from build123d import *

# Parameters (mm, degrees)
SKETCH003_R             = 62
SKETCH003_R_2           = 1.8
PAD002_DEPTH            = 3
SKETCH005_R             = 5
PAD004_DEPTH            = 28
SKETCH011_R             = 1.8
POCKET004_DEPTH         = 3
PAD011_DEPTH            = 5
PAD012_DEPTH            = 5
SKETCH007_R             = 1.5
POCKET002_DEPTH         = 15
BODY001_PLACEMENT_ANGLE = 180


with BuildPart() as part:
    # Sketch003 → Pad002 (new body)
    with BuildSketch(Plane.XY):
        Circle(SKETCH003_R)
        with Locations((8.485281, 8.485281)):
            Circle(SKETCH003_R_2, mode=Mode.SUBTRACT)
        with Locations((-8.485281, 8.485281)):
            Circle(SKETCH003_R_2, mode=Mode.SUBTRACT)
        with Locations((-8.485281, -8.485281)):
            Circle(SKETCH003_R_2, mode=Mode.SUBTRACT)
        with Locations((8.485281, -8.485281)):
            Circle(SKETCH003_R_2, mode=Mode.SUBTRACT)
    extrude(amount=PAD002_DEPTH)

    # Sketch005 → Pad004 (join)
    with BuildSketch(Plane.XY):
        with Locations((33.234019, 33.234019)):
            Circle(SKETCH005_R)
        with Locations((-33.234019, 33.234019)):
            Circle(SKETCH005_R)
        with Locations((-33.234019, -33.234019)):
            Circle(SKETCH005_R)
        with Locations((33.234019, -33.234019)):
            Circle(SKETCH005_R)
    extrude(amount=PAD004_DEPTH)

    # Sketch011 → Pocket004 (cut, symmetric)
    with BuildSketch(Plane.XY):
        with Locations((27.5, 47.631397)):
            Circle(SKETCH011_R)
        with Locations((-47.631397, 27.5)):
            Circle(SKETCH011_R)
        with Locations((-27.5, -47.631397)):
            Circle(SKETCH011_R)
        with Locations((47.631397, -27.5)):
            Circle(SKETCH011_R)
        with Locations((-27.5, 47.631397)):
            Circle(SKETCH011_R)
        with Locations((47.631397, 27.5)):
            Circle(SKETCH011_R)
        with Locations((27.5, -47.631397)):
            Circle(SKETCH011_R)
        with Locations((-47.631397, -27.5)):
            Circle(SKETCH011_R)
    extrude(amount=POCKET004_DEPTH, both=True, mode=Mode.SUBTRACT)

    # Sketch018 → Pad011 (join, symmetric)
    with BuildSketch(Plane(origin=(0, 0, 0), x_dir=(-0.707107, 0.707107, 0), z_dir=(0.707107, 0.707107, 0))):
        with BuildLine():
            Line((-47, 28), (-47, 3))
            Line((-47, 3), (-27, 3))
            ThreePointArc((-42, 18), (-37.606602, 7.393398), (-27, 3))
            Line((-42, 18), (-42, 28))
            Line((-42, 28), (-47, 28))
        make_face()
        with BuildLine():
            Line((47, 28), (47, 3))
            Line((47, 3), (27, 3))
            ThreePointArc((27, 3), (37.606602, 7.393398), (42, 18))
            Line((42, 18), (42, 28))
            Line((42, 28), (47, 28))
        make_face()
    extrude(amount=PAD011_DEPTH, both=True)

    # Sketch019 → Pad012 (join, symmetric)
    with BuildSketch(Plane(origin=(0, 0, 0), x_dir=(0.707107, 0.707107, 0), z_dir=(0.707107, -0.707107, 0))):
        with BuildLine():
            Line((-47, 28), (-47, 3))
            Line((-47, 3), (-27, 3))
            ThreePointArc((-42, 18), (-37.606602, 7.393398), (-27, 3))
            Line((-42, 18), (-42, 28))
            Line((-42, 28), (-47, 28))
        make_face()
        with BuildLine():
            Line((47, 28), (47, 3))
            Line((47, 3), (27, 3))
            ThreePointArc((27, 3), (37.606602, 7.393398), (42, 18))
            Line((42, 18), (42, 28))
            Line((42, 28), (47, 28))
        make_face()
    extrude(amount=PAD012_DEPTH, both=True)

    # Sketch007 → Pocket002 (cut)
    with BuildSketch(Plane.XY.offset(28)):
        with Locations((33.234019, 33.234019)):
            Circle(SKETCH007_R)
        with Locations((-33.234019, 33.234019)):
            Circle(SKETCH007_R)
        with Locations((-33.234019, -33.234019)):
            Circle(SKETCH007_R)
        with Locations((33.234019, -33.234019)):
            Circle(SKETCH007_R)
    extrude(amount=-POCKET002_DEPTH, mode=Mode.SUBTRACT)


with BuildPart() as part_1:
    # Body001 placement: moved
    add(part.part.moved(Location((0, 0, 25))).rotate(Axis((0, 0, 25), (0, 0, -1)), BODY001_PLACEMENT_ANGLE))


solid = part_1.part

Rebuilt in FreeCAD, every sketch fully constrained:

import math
import FreeCAD as App
import Part
import Sketcher

V = App.Vector

doc = App.newDocument("Part")
body = doc.addObject("PartDesign::Body", "Body")

# Sketch on XY plane
sketch1 = doc.addObject("Sketcher::SketchObject", "Sketch")
body.addObject(sketch1)
sketch1.AttachmentSupport = (doc.XY_Plane, [""])
sketch1.MapMode = "FlatFace"
sketch1.addGeometry([
    Part.Circle(V(0, 0, 0), V(0, 0, 1), 62),  # 0
    Part.Circle(V(-8.5, -8.5, 0), V(0, 0, 1), 1.8),  # 1
    Part.Circle(V(8.5, -8.5, 0), V(0, 0, 1), 1.8),  # 2
    Part.Circle(V(-8.5, 8.5, 0), V(0, 0, 1), 1.8),  # 3
    Part.Circle(V(8.5, 8.5, 0), V(0, 0, 1), 1.8),  # 4
], False)
sketch1.addConstraint([
    Sketcher.Constraint("Coincident", 0, 3, -1, 1),
    Sketcher.Constraint("Equal", 1, 2),
    Sketcher.Constraint("Equal", 2, 3),
    Sketcher.Constraint("Equal", 3, 4),
    Sketcher.Constraint("Symmetric", 2, 3, 3, 3, -1, 1),
    Sketcher.Constraint("Symmetric", 1, 3, 4, 3, -1, 1),
    Sketcher.Constraint("Symmetric", 1, 3, 2, 3, -2),
    Sketcher.Constraint("Diameter", 0, 124.0),
    Sketcher.Constraint("Diameter", 1, 3.6),
    Sketcher.Constraint("DistanceX", 1, 3, -1, 1, 8.485281),
    Sketcher.Constraint("DistanceY", 1, 3, -1, 1, 8.485281),
])
pad1 = doc.addObject("PartDesign::Pad", "Pad")
body.addObject(pad1)
pad1.Profile = sketch1
pad1.Length = 3

# Sketch on XY plane
sketch2 = doc.addObject("Sketcher::SketchObject", "Sketch001")
body.addObject(sketch2)
sketch2.AttachmentSupport = (doc.XY_Plane, [""])
sketch2.MapMode = "FlatFace"
sketch2.addGeometry([
    Part.Circle(V(33, 33, 0), V(0, 0, 1), 5),
    Part.Circle(V(-33, 33, 0), V(0, 0, 1), 5),
    Part.Circle(V(-33, -33, 0), V(0, 0, 1), 5),
    Part.Circle(V(33, -33, 0), V(0, 0, 1), 5),
], False)
sketch2.addConstraint([
    Sketcher.Constraint("Equal", 0, 1),
    Sketcher.Constraint("Equal", 1, 2),
    Sketcher.Constraint("Equal", 2, 3),
    Sketcher.Constraint("Symmetric", 0, 3, 2, 3, -1, 1),
    Sketcher.Constraint("Symmetric", 1, 3, 3, 3, -1, 1),
    Sketcher.Constraint("Symmetric", 0, 3, 1, 3, -2),
    Sketcher.Constraint("Diameter", 0, 10.0),
    Sketcher.Constraint("DistanceX", -1, 1, 0, 3, 33.234019),
    Sketcher.Constraint("DistanceY", -1, 1, 0, 3, 33.234019),
])
pad2 = doc.addObject("PartDesign::Pad", "Pad001")
body.addObject(pad2)
pad2.Profile = sketch2
pad2.Length = 28

# Sketch on XY plane
sketch3 = doc.addObject("Sketcher::SketchObject", "Sketch002")
body.addObject(sketch3)
sketch3.AttachmentSupport = (doc.XY_Plane, [""])
sketch3.MapMode = "FlatFace"
sketch3.addGeometry([
    Part.Circle(V(27.5, 47.6, 0), V(0, 0, 1), 1.8),  # 0
    Part.Circle(V(-47.6, 27.5, 0), V(0, 0, 1), 1.8),  # 1
    Part.Circle(V(-27.5, -47.6, 0), V(0, 0, 1), 1.8),  # 2
    Part.Circle(V(47.6, -27.5, 0), V(0, 0, 1), 1.8),  # 3
    Part.Circle(V(-27.5, 47.6, 0), V(0, 0, 1), 1.8),  # 4
    Part.Circle(V(47.6, 27.5, 0), V(0, 0, 1), 1.8),  # 5
    Part.Circle(V(27.5, -47.6, 0), V(0, 0, 1), 1.8),  # 6
    Part.Circle(V(-47.6, -27.5, 0), V(0, 0, 1), 1.8),  # 7
], False)
sketch3.addConstraint([
    Sketcher.Constraint("Equal", 0, 1),
    Sketcher.Constraint("Equal", 1, 2),
    Sketcher.Constraint("Equal", 2, 3),
    Sketcher.Constraint("Equal", 3, 4),
    Sketcher.Constraint("Equal", 4, 5),
    Sketcher.Constraint("Equal", 5, 6),
    Sketcher.Constraint("Equal", 6, 7),
    Sketcher.Constraint("Symmetric", 0, 3, 2, 3, -1, 1),
    Sketcher.Constraint("Symmetric", 1, 3, 3, 3, -1, 1),
    Sketcher.Constraint("Symmetric", 4, 3, 6, 3, -1, 1),
    Sketcher.Constraint("Symmetric", 5, 3, 7, 3, -1, 1),
    Sketcher.Constraint("Symmetric", 0, 3, 4, 3, -2),
    Sketcher.Constraint("Symmetric", 1, 3, 5, 3, -2),
    Sketcher.Constraint("Diameter", 0, 3.6),
    Sketcher.Constraint("DistanceX", 2, 3, 0, 3, 55.0),
    Sketcher.Constraint("DistanceY", 3, 3, 1, 3, 55.0),
    Sketcher.Constraint("DistanceY", -1, 1, 0, 3, 47.631397),
    Sketcher.Constraint("DistanceX", 1, 3, -1, 1, 47.631397),
])
pocket1 = doc.addObject("PartDesign::Pocket", "Pocket")
body.addObject(pocket1)
pocket1.Profile = sketch3
pocket1.Length = 6
pocket1.Midplane = True

# Sketch on an angled plane
sketch4 = doc.addObject("Sketcher::SketchObject", "Sketch003")
body.addObject(sketch4)
sketch4.Placement = App.Placement(V(0, 0, 0), App.Rotation(V(-0.707106781, 0.707106781, 0), V(0, 0, 0.999999999), V(0.707106781, 0.707106781, 0), "ZXY"))
sketch4.addGeometry([
    Part.LineSegment(V(-47, 28, 0), V(-47, 3, 0)),  # 0
    Part.LineSegment(V(-47, 3, 0), V(-27, 3, 0)),  # 1
    Part.ArcOfCircle(Part.Circle(V(-27, 18, 0), V(0, 0, 1), 15), math.radians(180), math.radians(270)),  # 2
    Part.LineSegment(V(-42, 18, 0), V(-42, 28, 0)),  # 3
    Part.LineSegment(V(-42, 28, 0), V(-47, 28, 0)),  # 4
    Part.LineSegment(V(47, 3, 0), V(47, 28, 0)),  # 5
    Part.LineSegment(V(47, 28, 0), V(42, 28, 0)),  # 6
    Part.LineSegment(V(42, 28, 0), V(42, 18, 0)),  # 7
    Part.ArcOfCircle(Part.Circle(V(27, 18, 0), V(0, 0, 1), 15), math.radians(-90), math.radians(0)),  # 8
    Part.LineSegment(V(27, 3, 0), V(47, 3, 0)),  # 9
], False)
sketch4.addConstraint([
    Sketcher.Constraint("Coincident", 0, 2, 1, 1),
    Sketcher.Constraint("Tangent", 1, 2, 2, 2),
    Sketcher.Constraint("Tangent", 2, 1, 3, 1),
    Sketcher.Constraint("Coincident", 3, 2, 4, 1),
    Sketcher.Constraint("Coincident", 4, 2, 0, 1),
    Sketcher.Constraint("Coincident", 5, 2, 6, 1),
    Sketcher.Constraint("Coincident", 6, 2, 7, 1),
    Sketcher.Constraint("Tangent", 7, 2, 8, 2),
    Sketcher.Constraint("Tangent", 8, 1, 9, 1),
    Sketcher.Constraint("Coincident", 9, 2, 5, 1),
    Sketcher.Constraint("Vertical", 0),
    Sketcher.Constraint("Horizontal", 1),
    Sketcher.Constraint("Vertical", 3),
    Sketcher.Constraint("Horizontal", 4),
    Sketcher.Constraint("Vertical", 5),
    Sketcher.Constraint("Horizontal", 6),
    Sketcher.Constraint("Vertical", 7),
    Sketcher.Constraint("Horizontal", 9),
    Sketcher.Constraint("Equal", 2, 8),
    Sketcher.Constraint("Symmetric", 2, 3, 8, 3, -2),
    Sketcher.Constraint("Symmetric", 4, 2, 5, 2, -2),
    Sketcher.Constraint("Radius", 2, 14.999999),
    Sketcher.Constraint("DistanceX", 1, 1, 1, 2, 20.0),
    Sketcher.Constraint("DistanceY", 0, 2, 0, 1, 25.0),
    Sketcher.Constraint("DistanceX", 2, 3, -1, 1, 27.000001),
    Sketcher.Constraint("DistanceY", -1, 1, 2, 3, 17.999999),
])
pad3 = doc.addObject("PartDesign::Pad", "Pad002")
body.addObject(pad3)
pad3.Profile = sketch4
pad3.Length = 10
pad3.Midplane = True

# Sketch on an angled plane
sketch5 = doc.addObject("Sketcher::SketchObject", "Sketch004")
body.addObject(sketch5)
sketch5.Placement = App.Placement(V(0, 0, 0), App.Rotation(V(0.707106781, 0.707106781, 0), V(0, 0, 0.999999999), V(0.707106781, -0.707106781, 0), "ZXY"))
sketch5.addGeometry([
    Part.LineSegment(V(-47, 28, 0), V(-47, 3, 0)),  # 0
    Part.LineSegment(V(-47, 3, 0), V(-27, 3, 0)),  # 1
    Part.ArcOfCircle(Part.Circle(V(-27, 18, 0), V(0, 0, 1), 15), math.radians(180), math.radians(270)),  # 2
    Part.LineSegment(V(-42, 18, 0), V(-42, 28, 0)),  # 3
    Part.LineSegment(V(-42, 28, 0), V(-47, 28, 0)),  # 4
    Part.LineSegment(V(47, 3, 0), V(47, 28, 0)),  # 5
    Part.LineSegment(V(47, 28, 0), V(42, 28, 0)),  # 6
    Part.LineSegment(V(42, 28, 0), V(42, 18, 0)),  # 7
    Part.ArcOfCircle(Part.Circle(V(27, 18, 0), V(0, 0, 1), 15), math.radians(-90), math.radians(0)),  # 8
    Part.LineSegment(V(27, 3, 0), V(47, 3, 0)),  # 9
], False)
sketch5.addConstraint([
    Sketcher.Constraint("Coincident", 0, 2, 1, 1),
    Sketcher.Constraint("Tangent", 1, 2, 2, 2),
    Sketcher.Constraint("Tangent", 2, 1, 3, 1),
    Sketcher.Constraint("Coincident", 3, 2, 4, 1),
    Sketcher.Constraint("Coincident", 4, 2, 0, 1),
    Sketcher.Constraint("Coincident", 5, 2, 6, 1),
    Sketcher.Constraint("Coincident", 6, 2, 7, 1),
    Sketcher.Constraint("Tangent", 7, 2, 8, 2),
    Sketcher.Constraint("Tangent", 8, 1, 9, 1),
    Sketcher.Constraint("Coincident", 9, 2, 5, 1),
    Sketcher.Constraint("Vertical", 0),
    Sketcher.Constraint("Horizontal", 1),
    Sketcher.Constraint("Vertical", 3),
    Sketcher.Constraint("Horizontal", 4),
    Sketcher.Constraint("Vertical", 5),
    Sketcher.Constraint("Horizontal", 6),
    Sketcher.Constraint("Vertical", 7),
    Sketcher.Constraint("Horizontal", 9),
    Sketcher.Constraint("Equal", 2, 8),
    Sketcher.Constraint("Symmetric", 2, 3, 8, 3, -2),
    Sketcher.Constraint("Symmetric", 4, 2, 5, 2, -2),
    Sketcher.Constraint("Radius", 2, 14.999999),
    Sketcher.Constraint("DistanceX", 1, 1, 1, 2, 20.0),
    Sketcher.Constraint("DistanceY", 0, 2, 0, 1, 25.0),
    Sketcher.Constraint("DistanceX", 2, 3, -1, 1, 27.000001),
    Sketcher.Constraint("DistanceY", -1, 1, 2, 3, 17.999999),
])
pad4 = doc.addObject("PartDesign::Pad", "Pad003")
body.addObject(pad4)
pad4.Profile = sketch5
pad4.Length = 10
pad4.Midplane = True

# Sketch on XY plane
sketch6 = doc.addObject("Sketcher::SketchObject", "Sketch005")
body.addObject(sketch6)
sketch6.AttachmentSupport = (doc.XY_Plane, [""])
sketch6.MapMode = "FlatFace"
sketch6.AttachmentOffset = App.Placement(V(0, 0, 28), App.Rotation())
sketch6.addGeometry([
    Part.Circle(V(33.2, 33.2, 0), V(0, 0, 1), 1.5),
    Part.Circle(V(-33.2, 33.2, 0), V(0, 0, 1), 1.5),
    Part.Circle(V(-33.2, -33.2, 0), V(0, 0, 1), 1.5),
    Part.Circle(V(33.2, -33.2, 0), V(0, 0, 1), 1.5),
], False)
sketch6.addConstraint([
    Sketcher.Constraint("Equal", 0, 1),
    Sketcher.Constraint("Equal", 1, 2),
    Sketcher.Constraint("Equal", 2, 3),
    Sketcher.Constraint("Symmetric", 0, 3, 2, 3, -1, 1),
    Sketcher.Constraint("Symmetric", 1, 3, 3, 3, -1, 1),
    Sketcher.Constraint("Symmetric", 0, 3, 1, 3, -2),
    Sketcher.Constraint("Diameter", 0, 3.0),
    Sketcher.Constraint("DistanceX", -1, 1, 0, 3, 33.234019),
    Sketcher.Constraint("DistanceY", -1, 1, 0, 3, 33.234019),
])
pocket2 = doc.addObject("PartDesign::Pocket", "Pocket001")
body.addObject(pocket2)
pocket2.Profile = sketch6
pocket2.Length = 15
body2 = doc.addObject("PartDesign::Body", "Body001")
doc.recompute()

body.Placement = App.Placement(V(0, 0, 25), App.Rotation(V(0, 0, -1), 180))
boolean = doc.addObject("PartDesign::Boolean", "Boolean")
body2.addObject(boolean)
boolean.Type = "Fuse"
boolean.addObjects([body])

doc.recompute()
